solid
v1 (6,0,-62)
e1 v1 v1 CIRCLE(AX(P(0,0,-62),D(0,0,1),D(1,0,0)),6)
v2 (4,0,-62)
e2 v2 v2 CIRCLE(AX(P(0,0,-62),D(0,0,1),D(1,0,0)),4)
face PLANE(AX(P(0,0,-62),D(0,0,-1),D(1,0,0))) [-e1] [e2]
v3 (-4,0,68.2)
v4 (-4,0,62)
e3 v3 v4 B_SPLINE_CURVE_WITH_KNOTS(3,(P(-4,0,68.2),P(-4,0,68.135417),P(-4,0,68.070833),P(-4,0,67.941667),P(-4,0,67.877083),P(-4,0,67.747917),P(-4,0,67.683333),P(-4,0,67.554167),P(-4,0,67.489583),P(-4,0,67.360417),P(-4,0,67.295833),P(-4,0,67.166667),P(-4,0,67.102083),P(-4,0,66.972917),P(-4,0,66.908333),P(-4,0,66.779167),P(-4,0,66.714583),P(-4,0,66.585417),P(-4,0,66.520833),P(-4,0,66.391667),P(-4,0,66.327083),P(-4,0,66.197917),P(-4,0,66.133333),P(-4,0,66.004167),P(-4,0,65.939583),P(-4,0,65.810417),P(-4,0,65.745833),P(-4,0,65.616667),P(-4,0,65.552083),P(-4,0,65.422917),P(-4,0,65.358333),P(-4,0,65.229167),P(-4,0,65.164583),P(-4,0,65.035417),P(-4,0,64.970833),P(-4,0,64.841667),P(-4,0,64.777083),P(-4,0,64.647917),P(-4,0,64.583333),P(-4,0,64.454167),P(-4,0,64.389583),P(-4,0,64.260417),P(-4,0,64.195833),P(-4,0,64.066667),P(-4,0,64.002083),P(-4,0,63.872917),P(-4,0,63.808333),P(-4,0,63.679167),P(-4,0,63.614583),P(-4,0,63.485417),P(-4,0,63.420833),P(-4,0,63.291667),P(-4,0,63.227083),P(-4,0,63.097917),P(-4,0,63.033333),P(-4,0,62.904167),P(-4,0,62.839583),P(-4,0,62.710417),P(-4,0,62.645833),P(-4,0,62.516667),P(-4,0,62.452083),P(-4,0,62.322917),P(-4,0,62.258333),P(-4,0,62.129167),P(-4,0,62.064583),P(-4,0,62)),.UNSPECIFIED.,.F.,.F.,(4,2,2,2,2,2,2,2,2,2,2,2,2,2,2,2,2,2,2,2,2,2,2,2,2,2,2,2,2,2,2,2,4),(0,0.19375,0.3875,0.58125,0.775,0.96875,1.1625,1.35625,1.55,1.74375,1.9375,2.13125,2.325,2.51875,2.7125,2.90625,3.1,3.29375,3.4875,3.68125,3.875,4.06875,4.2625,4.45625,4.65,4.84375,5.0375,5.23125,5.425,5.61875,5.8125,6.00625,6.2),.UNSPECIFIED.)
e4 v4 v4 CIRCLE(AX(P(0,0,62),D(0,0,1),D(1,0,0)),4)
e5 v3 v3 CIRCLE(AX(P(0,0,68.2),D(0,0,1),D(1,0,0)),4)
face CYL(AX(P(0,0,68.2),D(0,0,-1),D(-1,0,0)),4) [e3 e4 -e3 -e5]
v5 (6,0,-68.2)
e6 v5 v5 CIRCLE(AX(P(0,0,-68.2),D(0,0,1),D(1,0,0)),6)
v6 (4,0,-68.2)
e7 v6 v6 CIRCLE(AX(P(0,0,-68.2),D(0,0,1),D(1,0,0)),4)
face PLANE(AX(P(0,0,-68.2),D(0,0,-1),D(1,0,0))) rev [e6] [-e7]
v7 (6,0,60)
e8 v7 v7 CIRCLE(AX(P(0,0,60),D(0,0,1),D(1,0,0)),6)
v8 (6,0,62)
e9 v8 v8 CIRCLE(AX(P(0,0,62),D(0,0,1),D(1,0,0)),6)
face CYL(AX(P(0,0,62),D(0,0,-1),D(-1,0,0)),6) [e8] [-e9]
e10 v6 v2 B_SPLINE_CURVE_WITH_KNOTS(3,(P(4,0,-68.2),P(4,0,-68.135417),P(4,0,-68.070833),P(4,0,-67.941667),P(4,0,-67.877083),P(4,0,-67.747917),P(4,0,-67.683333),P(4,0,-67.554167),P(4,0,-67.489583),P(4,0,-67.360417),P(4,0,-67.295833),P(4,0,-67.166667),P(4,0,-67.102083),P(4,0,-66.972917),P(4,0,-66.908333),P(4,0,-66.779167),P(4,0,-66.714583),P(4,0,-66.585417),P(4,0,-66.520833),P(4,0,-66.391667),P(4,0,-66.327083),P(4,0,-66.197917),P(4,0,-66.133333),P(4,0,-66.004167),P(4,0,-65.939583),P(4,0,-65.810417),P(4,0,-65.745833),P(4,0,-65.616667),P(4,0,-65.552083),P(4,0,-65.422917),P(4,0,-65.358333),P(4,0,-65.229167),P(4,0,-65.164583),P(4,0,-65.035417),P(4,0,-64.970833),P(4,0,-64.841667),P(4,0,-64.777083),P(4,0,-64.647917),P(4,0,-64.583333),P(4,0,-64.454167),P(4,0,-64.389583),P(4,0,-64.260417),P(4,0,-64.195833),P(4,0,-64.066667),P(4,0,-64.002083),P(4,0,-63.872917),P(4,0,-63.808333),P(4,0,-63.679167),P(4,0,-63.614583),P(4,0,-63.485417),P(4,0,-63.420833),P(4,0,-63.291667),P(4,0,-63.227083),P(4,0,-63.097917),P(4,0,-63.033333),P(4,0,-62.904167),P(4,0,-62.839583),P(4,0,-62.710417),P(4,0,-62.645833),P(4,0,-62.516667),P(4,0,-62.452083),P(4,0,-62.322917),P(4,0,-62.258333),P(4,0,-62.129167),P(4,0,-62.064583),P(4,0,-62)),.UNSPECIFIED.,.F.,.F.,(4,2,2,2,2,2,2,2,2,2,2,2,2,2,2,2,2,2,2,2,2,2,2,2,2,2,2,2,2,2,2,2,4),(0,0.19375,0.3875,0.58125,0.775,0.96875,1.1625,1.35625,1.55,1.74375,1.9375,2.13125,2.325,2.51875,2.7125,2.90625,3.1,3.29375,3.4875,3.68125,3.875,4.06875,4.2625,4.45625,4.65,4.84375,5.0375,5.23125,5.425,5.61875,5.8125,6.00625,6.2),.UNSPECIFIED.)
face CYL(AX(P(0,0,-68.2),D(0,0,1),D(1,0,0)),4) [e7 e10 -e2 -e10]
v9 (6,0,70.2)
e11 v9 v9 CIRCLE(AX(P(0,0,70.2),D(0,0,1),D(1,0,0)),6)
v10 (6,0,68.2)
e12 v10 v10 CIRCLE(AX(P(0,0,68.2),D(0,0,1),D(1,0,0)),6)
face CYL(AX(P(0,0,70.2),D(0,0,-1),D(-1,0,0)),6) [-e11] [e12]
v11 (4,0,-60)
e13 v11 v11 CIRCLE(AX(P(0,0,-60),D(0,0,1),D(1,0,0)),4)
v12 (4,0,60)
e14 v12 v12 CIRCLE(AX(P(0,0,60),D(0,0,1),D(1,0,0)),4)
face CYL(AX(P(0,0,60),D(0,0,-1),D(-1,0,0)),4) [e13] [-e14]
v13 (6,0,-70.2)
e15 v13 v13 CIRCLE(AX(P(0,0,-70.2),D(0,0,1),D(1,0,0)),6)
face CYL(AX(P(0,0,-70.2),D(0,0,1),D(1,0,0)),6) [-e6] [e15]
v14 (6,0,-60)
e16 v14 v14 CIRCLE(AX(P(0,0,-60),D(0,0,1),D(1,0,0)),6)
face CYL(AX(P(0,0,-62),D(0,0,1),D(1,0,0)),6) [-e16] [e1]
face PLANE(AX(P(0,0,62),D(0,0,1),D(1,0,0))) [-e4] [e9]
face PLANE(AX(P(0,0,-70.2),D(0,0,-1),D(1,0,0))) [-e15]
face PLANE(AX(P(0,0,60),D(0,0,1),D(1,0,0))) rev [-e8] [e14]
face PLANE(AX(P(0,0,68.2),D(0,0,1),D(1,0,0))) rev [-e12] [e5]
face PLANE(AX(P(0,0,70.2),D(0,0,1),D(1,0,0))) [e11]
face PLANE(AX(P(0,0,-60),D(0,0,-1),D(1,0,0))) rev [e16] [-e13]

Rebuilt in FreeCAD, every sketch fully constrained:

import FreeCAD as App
import Part
import Sketcher

V = App.Vector

doc = App.newDocument("Part")
body = doc.addObject("PartDesign::Body", "Body")

# Sketch on XY plane
sketch1 = body.newObject("Sketcher::SketchObject", "Sketch")
sketch1.AttachmentSupport = (doc.getObject("XY_Plane"), [""])
sketch1.MapMode = "FlatFace"
sketch1.addGeometry(Part.Circle(V(0, 0, 0), V(0, 0, 1), 4), False)
sketch1.addConstraint([
    Sketcher.Constraint("Coincident", 0, 3, -1, 1),
    Sketcher.Constraint("Diameter", 0, 8.0),
])
pad1 = body.newObject("PartDesign::Pad", "Pad")
pad1.Profile = sketch1
pad1.Length = 120
pad1.Midplane = True

# Sketch on XY plane
sketch2 = body.newObject("Sketcher::SketchObject", "Sketch001")
sketch2.AttachmentSupport = (doc.getObject("XY_Plane"), [""])
sketch2.MapMode = "FlatFace"
sketch2.AttachmentOffset = App.Placement(V(0, 0, 60), App.Rotation())
sketch2.addGeometry(Part.Circle(V(0, 0, 0), V(0, 0, 1), 6), False)
sketch2.addConstraint([
    Sketcher.Constraint("Coincident", 0, 3, -1, 1),
    Sketcher.Constraint("Diameter", 0, 12.0),
])
pad2 = body.newObject("PartDesign::Pad", "Pad001")
pad2.Profile = sketch2
pad2.Length = 2

# Sketch on XY plane
sketch3 = body.newObject("Sketcher::SketchObject", "Sketch002")
sketch3.AttachmentSupport = (doc.getObject("XY_Plane"), [""])
sketch3.MapMode = "FlatFace"
sketch3.AttachmentOffset = App.Placement(V(0, 0, 68.2), App.Rotation())
sketch3.addGeometry(Part.Circle(V(0, 0, 0), V(0, 0, 1), 4), False)
sketch3.addConstraint([
    Sketcher.Constraint("Coincident", 0, 3, -1, 1),
    Sketcher.Constraint("Diameter", 0, 8.0),
])
pad3 = body.newObject("PartDesign::Pad", "Pad002")
pad3.Profile = sketch3
pad3.Length = 6.2
pad3.Reversed = True

# Sketch on XY plane
sketch4 = body.newObject("Sketcher::SketchObject", "Sketch003")
sketch4.AttachmentSupport = (doc.getObject("XY_Plane"), [""])
sketch4.MapMode = "FlatFace"
sketch4.AttachmentOffset = App.Placement(V(0, 0, 68.2), App.Rotation())
sketch4.addGeometry(Part.Circle(V(0, 0, 0), V(0, 0, 1), 6), False)
sketch4.addConstraint([
    Sketcher.Constraint("Coincident", 0, 3, -1, 1),
    Sketcher.Constraint("Diameter", 0, 12.0),
])
pad4 = body.newObject("PartDesign::Pad", "Pad003")
pad4.Profile = sketch4
pad4.Length = 2
doc.recompute()

mirrored = body.newObject("PartDesign::Mirrored", "Mirrored")
mirrored.Originals = [pad2, pad3, pad4]
mirrored.MirrorPlane = (doc.getObject("XY_Plane"), [""])
body.Tip = mirrored

doc.recompute()
